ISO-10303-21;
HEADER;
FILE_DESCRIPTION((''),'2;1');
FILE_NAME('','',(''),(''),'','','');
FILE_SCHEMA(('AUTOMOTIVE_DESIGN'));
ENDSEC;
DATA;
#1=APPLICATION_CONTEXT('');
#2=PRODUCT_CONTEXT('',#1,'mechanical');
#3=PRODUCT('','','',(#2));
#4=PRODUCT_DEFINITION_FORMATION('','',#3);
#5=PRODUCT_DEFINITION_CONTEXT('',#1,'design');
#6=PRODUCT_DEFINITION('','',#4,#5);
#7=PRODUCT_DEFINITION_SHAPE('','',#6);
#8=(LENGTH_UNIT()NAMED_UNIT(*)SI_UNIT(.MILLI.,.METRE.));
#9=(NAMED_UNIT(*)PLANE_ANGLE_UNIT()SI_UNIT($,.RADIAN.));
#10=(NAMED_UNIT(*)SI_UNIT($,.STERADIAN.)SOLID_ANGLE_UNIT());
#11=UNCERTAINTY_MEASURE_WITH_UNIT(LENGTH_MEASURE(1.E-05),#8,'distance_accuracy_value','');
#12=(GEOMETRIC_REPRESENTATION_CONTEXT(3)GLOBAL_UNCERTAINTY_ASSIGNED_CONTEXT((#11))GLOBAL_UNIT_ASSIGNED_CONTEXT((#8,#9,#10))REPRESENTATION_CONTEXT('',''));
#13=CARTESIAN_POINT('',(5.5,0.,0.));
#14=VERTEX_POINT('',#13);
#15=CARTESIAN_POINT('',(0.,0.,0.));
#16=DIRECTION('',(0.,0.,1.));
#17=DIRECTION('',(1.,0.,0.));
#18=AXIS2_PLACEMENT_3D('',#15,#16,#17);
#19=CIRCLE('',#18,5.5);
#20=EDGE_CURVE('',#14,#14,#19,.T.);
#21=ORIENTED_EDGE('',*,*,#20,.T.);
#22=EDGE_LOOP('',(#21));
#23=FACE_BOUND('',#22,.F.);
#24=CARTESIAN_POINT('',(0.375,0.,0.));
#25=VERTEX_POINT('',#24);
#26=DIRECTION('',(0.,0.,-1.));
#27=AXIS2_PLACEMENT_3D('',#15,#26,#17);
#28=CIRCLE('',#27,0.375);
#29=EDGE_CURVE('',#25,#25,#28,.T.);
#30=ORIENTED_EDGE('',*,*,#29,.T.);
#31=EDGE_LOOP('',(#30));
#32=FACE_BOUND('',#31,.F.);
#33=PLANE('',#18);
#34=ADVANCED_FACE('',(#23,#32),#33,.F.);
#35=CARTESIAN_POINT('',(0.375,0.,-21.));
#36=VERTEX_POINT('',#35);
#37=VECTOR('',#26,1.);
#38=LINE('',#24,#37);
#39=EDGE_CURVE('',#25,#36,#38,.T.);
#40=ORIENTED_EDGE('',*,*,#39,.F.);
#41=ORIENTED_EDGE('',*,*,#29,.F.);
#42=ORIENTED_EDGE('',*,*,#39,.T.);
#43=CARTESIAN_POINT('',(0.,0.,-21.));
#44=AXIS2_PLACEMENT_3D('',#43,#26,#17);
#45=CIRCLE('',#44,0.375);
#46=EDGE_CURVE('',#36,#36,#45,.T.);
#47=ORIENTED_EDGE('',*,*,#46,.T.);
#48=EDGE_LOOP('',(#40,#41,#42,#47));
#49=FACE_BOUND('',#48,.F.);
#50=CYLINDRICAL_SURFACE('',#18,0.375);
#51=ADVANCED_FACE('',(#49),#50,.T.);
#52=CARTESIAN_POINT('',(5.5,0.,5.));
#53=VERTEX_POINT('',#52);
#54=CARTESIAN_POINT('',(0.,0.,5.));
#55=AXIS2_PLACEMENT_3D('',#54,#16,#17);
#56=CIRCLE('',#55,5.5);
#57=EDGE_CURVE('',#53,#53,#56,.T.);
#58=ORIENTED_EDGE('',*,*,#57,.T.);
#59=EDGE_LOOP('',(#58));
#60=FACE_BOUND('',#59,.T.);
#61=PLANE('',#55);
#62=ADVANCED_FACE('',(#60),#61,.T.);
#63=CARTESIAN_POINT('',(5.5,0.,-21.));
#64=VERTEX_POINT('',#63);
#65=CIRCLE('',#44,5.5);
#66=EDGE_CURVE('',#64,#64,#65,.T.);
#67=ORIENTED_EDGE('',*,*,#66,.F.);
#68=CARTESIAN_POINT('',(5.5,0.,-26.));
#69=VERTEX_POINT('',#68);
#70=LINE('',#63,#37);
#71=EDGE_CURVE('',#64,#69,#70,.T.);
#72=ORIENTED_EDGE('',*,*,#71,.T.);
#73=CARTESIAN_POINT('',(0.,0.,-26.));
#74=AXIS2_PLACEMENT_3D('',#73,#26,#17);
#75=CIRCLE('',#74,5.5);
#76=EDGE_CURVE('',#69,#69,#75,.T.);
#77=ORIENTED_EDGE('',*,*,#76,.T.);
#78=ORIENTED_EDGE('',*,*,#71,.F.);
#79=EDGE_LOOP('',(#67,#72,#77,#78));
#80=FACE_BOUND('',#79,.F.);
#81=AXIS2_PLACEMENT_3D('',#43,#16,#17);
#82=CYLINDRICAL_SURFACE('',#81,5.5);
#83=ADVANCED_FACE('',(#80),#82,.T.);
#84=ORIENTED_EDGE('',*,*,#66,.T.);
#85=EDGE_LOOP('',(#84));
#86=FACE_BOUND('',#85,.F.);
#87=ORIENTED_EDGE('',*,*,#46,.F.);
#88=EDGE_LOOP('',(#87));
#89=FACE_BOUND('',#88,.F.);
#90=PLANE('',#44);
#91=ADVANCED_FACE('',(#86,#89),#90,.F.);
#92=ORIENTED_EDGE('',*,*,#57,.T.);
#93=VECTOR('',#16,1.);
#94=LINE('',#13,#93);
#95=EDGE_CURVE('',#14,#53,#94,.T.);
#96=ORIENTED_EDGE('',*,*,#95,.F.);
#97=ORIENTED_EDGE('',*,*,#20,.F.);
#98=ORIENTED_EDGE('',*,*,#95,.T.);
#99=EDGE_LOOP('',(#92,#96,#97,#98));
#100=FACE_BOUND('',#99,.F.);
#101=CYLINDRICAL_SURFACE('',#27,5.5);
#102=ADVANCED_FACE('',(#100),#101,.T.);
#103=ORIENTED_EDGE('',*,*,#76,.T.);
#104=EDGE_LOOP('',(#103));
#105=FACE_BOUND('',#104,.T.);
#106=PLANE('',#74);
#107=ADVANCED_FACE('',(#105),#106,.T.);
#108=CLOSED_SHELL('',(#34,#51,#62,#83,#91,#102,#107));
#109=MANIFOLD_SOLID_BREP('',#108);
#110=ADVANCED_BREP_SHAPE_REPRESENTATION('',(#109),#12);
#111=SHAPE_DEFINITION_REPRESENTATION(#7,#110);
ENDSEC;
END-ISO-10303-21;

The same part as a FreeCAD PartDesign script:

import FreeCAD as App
import Part
import Sketcher
Q = App.Units.Quantity

doc = App.newDocument("Part")
body = doc.addObject("PartDesign::Body", "Body")

sketch1 = doc.addObject("Sketcher::SketchObject", "Sketch")
body.addObject(sketch1)
sketch1.AttachmentSupport = (doc.XY_Plane, [""])
sketch1.MapMode = "FlatFace"
sketch1.addGeometry(Part.Circle(App.Vector(0, 0, 0), App.Vector(0, 0, 1), 6), False)
sketch1.addConstraint([
    Sketcher.Constraint("Coincident", 0, 3, -1, 1),
    Sketcher.Constraint("Diameter", 0, Q("11 mm")),
])
pad1 = doc.addObject("PartDesign::Pad", "Pad")
body.addObject(pad1)
pad1.Profile = sketch1
pad1.Length = 5
body2 = doc.addObject("PartDesign::Body", "Body001")

sketch2 = doc.addObject("Sketcher::SketchObject", "Sketch001")
body2.addObject(sketch2)
sketch2.AttachmentSupport = (doc.getObject("XY_Plane001"), [""])
sketch2.MapMode = "FlatFace"
sketch2.AttachmentOffset = App.Placement(App.Vector(0, 0, -21), App.Rotation())
sketch2.addGeometry(Part.Circle(App.Vector(0, 0, 0), App.Vector(0, 0, 1), 6), False)
sketch2.addConstraint([
    Sketcher.Constraint("Coincident", 0, 3, -1, 1),
    Sketcher.Constraint("Diameter", 0, Q("11 mm")),
])
pad2 = doc.addObject("PartDesign::Pad", "Pad001")
body2.addObject(pad2)
pad2.Profile = sketch2
pad2.Length = 5
pad2.Reversed = True
body.AllowCompound = True
doc.recompute()

boolean = doc.addObject("PartDesign::Boolean", "Boolean")
body.addObject(boolean)
boolean.Type = "Fuse"
boolean.addObjects([body2])

sketch3 = doc.addObject("Sketcher::SketchObject", "Sketch002")
body.addObject(sketch3)
sketch3.AttachmentSupport = (doc.XY_Plane, [""])
sketch3.MapMode = "FlatFace"
sketch3.addGeometry(Part.Circle(App.Vector(0, 0, 0), App.Vector(0, 0, 1), 0.38), False)
sketch3.addConstraint([
    Sketcher.Constraint("Coincident", 0, 3, -1, 1),
    Sketcher.Constraint("Diameter", 0, Q("0.75 mm")),
])
pad3 = doc.addObject("PartDesign::Pad", "Pad002")
body.addObject(pad3)
pad3.Profile = sketch3
pad3.Length = 21
pad3.Reversed = True

doc.recompute()
